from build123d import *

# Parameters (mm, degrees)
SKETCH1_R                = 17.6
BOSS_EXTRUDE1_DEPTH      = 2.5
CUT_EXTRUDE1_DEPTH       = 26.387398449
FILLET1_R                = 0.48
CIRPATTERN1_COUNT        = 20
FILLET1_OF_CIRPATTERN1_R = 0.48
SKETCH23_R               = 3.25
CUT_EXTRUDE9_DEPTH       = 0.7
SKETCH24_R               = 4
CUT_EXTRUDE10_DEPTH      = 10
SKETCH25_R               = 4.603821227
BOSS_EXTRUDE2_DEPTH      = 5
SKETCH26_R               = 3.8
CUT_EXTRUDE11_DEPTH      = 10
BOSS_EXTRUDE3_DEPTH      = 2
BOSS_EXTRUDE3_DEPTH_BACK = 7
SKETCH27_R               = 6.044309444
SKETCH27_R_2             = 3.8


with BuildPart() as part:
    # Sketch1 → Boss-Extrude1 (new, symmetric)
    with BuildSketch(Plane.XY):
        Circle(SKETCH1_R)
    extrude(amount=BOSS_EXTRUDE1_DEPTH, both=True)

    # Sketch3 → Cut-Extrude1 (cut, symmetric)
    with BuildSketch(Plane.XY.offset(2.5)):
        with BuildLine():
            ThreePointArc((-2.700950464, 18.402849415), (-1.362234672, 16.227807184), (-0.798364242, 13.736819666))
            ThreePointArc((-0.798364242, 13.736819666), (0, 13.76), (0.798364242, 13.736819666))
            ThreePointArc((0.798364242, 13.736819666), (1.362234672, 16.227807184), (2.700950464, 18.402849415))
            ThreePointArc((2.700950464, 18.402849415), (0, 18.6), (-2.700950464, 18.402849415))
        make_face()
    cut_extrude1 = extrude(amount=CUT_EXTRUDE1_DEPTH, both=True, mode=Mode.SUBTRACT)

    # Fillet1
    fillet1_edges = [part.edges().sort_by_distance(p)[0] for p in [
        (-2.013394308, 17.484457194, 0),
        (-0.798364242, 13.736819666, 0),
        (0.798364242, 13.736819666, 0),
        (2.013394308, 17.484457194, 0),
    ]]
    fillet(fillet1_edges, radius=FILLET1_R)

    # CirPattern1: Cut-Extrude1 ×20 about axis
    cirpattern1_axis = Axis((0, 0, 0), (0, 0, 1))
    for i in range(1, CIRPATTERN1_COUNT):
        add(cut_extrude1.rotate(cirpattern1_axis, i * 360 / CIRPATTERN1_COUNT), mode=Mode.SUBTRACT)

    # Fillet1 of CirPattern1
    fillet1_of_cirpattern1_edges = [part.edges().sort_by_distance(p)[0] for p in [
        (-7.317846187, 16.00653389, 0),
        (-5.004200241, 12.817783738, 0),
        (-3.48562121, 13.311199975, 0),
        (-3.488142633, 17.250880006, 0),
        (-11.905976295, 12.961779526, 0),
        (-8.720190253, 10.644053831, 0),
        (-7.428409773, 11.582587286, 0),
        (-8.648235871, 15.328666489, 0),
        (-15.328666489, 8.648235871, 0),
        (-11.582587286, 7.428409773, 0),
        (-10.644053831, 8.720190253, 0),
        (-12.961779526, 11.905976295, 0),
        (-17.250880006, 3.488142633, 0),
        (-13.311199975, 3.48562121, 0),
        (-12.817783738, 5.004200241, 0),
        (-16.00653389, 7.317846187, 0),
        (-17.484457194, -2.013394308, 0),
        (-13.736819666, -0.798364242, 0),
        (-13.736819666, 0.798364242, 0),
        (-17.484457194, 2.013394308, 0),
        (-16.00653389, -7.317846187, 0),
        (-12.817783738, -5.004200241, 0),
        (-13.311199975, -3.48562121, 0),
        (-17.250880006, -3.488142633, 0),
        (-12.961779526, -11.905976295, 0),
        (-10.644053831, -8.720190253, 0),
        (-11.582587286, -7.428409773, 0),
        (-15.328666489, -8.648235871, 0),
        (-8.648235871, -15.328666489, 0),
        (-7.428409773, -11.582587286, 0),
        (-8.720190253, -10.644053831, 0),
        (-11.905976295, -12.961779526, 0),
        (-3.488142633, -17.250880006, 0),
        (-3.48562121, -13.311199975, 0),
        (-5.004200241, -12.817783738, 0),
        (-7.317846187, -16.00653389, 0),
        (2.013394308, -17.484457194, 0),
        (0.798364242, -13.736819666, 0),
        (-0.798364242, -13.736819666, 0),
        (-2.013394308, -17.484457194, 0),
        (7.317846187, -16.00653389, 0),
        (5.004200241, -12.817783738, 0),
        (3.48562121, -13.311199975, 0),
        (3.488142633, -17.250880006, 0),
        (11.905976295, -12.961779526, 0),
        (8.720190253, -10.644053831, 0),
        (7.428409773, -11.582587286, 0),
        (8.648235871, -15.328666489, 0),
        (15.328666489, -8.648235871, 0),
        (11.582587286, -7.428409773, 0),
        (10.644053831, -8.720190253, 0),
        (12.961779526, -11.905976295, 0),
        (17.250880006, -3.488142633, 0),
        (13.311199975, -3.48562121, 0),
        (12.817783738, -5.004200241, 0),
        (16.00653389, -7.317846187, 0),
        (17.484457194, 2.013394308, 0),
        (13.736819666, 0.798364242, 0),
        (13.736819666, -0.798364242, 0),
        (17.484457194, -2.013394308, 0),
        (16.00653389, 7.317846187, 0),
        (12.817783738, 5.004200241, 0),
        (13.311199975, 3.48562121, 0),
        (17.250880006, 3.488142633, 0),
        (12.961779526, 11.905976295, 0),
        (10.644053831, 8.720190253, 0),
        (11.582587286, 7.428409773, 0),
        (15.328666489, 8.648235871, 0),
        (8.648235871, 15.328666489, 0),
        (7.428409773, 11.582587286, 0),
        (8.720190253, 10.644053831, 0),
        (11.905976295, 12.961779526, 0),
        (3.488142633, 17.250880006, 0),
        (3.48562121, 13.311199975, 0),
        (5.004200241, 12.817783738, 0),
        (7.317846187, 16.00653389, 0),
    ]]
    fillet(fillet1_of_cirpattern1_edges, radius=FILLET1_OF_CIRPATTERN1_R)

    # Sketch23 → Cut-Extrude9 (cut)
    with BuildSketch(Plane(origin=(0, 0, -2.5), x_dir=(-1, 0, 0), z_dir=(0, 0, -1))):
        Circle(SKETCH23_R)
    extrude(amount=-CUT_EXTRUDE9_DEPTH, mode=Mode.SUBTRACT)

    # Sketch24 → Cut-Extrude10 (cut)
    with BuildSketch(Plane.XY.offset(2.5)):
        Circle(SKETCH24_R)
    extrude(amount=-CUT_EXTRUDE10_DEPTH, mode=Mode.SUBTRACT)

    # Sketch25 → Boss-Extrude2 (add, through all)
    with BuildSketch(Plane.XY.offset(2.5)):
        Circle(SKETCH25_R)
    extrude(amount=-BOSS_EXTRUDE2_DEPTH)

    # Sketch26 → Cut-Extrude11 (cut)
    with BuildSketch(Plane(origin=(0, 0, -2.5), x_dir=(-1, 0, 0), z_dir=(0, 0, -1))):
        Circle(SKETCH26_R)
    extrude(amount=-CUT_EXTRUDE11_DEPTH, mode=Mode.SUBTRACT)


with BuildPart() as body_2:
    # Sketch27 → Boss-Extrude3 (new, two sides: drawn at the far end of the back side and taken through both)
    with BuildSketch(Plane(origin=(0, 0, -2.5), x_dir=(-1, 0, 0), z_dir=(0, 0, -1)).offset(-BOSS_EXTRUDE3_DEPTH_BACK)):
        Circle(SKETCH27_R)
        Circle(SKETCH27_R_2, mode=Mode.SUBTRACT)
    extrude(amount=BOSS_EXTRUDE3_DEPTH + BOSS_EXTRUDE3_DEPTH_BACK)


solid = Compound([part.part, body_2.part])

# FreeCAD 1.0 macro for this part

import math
import FreeCAD as App
import Part
import Sketcher
from FreeCAD import Vector


def edges_at(feature, points):
    """Names of the edges that pass closest to the given points."""
    edges = feature.Shape.Edges
    near = lambda p: min(range(len(edges)), key=lambda i: edges[i].distToShape(Part.Vertex(*p))[0])
    return sorted({f"Edge{near(p) + 1}" for p in points})

doc = App.newDocument("Part")
body = doc.addObject("PartDesign::Body", "Body")

# Sketch on XY plane
sketch1 = body.newObject("Sketcher::SketchObject", "Sketch")
sketch1.AttachmentSupport = (doc.getObject("XY_Plane"), [""])
sketch1.MapMode = "FlatFace"
sketch1.addGeometry(Part.Circle(Vector(0, 0, 0), Vector(0, 0, 1), 18), False)
sketch1.addConstraint(Sketcher.Constraint("Coincident", 0, 3, -1, 1))
sketch1.addConstraint(Sketcher.Constraint("Diameter", 0, 35.2))
pad1 = body.newObject("PartDesign::Pad", "Pad")
pad1.Profile = sketch1
pad1.Length = 5
pad1.Midplane = True

# Sketch on XY plane
sketch2 = body.newObject("Sketcher::SketchObject", "Sketch001")
sketch2.AttachmentSupport = (doc.getObject("XY_Plane"), [""])
sketch2.MapMode = "FlatFace"
sketch2.AttachmentOffset = App.Placement(Vector(0, 0, 2.5), App.Rotation())
sketch2.addGeometry(Part.ArcOfCircle(Part.Circle(Vector(-8.6, 13.3, 0), Vector(0, 0, 1), 7.8), math.radians(3), math.radians(41)), False)
sketch2.addGeometry(Part.ArcOfCircle(Part.Circle(Vector(0, 0, 0), Vector(0, 0, 1), 13.8), math.radians(86.67), math.radians(93.33)), False)
sketch2.addGeometry(Part.ArcOfCircle(Part.Circle(Vector(8.6, 13.3, 0), Vector(0, 0, 1), 7.8), math.radians(139), math.radians(177)), False)
sketch2.addGeometry(Part.ArcOfCircle(Part.Circle(Vector(0, 0, 0), Vector(0, 0, 1), 18.6), math.radians(81.65), math.radians(98.35)), False)
sketch2.addConstraint(Sketcher.Constraint("Coincident", 0, 1, 1, 2))
sketch2.addConstraint(Sketcher.Constraint("Coincident", 1, 1, 2, 2))
sketch2.addConstraint(Sketcher.Constraint("Coincident", 2, 1, 3, 1))
sketch2.addConstraint(Sketcher.Constraint("Coincident", 3, 2, 0, 2))
sketch2.addConstraint(Sketcher.Constraint("Coincident", 1, 3, -1, 1))
sketch2.addConstraint(Sketcher.Constraint("Coincident", 3, 3, -1, 1))
sketch2.addConstraint(Sketcher.Constraint("Equal", 0, 2))
sketch2.addConstraint(Sketcher.Constraint("Symmetric", 0, 3, 2, 3, -2))
sketch2.addConstraint(Sketcher.Constraint("Radius", 3, 18.6))
sketch2.addConstraint(Sketcher.Constraint("Radius", 1, 13.76))
sketch2.addConstraint(Sketcher.Constraint("Radius", 0, 7.795288))
sketch2.addConstraint(Sketcher.Constraint("DistanceX", 3, 2, 2, 1, 5.401901))
sketch2.addConstraint(Sketcher.Constraint("DistanceX", 0, 3, -1, 1, 8.58052))
pocket1 = body.newObject("PartDesign::Pocket", "Pocket")
pocket1.Profile = sketch2
pocket1.Length = 52.774797
pocket1.Midplane = True
doc.recompute()

fillet = body.newObject("PartDesign::Fillet", "Fillet")
fillet.Base = (pocket1, edges_at(pocket1, [
    (-2.013, 17.484, 0),
    (-0.798, 13.737, 0),
    (0.798, 13.737, 0),
    (2.013, 17.484, 0),
]))
fillet.Radius = 0.48
doc.recompute()

polarpattern = body.newObject("PartDesign::PolarPattern", "PolarPattern")
polarpattern.Originals = [pocket1]
polarpattern.Axis = (doc.getObject("Z_Axis"), [""])
polarpattern.Angle = 360
polarpattern.Occurrences = 20
body.Tip = polarpattern
doc.recompute()

fillet2 = body.newObject("PartDesign::Fillet", "Fillet001")
fillet2.Base = (polarpattern, edges_at(polarpattern, [
    (-7.318, 16.007, 0),
    (-5.004, 12.818, 0),
    (-3.486, 13.311, 0),
    (-3.488, 17.251, 0),
    (-11.906, 12.962, 0),
    (-8.72, 10.644, 0),
    (-7.428, 11.583, 0),
    (-8.648, 15.329, 0),
    (-15.329, 8.648, 0),
    (-11.583, 7.428, 0),
    (-10.644, 8.72, 0),
    (-12.962, 11.906, 0),
    (-17.251, 3.488, 0),
    (-13.311, 3.486, 0),
    (-12.818, 5.004, 0),
    (-16.007, 7.318, 0),
    (-17.484, -2.013, 0),
    (-13.737, -0.798, 0),
    (-13.737, 0.798, 0),
    (-17.484, 2.013, 0),
    (-16.007, -7.318, 0),
    (-12.818, -5.004, 0),
    (-13.311, -3.486, 0),
    (-17.251, -3.488, 0),
    (-12.962, -11.906, 0),
    (-10.644, -8.72, 0),
    (-11.583, -7.428, 0),
    (-15.329, -8.648, 0),
    (-8.648, -15.329, 0),
    (-7.428, -11.583, 0),
    (-8.72, -10.644, 0),
    (-11.906, -12.962, 0),
    (-3.488, -17.251, 0),
    (-3.486, -13.311, 0),
    (-5.004, -12.818, 0),
    (-7.318, -16.007, 0),
    (2.013, -17.484, 0),
    (0.798, -13.737, 0),
    (-0.798, -13.737, 0),
    (-2.013, -17.484, 0),
    (7.318, -16.007, 0),
    (5.004, -12.818, 0),
    (3.486, -13.311, 0),
    (3.488, -17.251, 0),
    (11.906, -12.962, 0),
    (8.72, -10.644, 0),
    (7.428, -11.583, 0),
    (8.648, -15.329, 0),
    (15.329, -8.648, 0),
    (11.583, -7.428, 0),
    (10.644, -8.72, 0),
    (12.962, -11.906, 0),
    (17.251, -3.488, 0),
    (13.311, -3.486, 0),
    (12.818, -5.004, 0),
    (16.007, -7.318, 0),
    (17.484, 2.013, 0),
    (13.737, 0.798, 0),
    (13.737, -0.798, 0),
    (17.484, -2.013, 0),
    (16.007, 7.318, 0),
    (12.818, 5.004, 0),
    (13.311, 3.486, 0),
    (17.251, 3.488, 0),
    (12.962, 11.906, 0),
    (10.644, 8.72, 0),
    (11.583, 7.428, 0),
    (15.329, 8.648, 0),
    (8.648, 15.329, 0),
    (7.428, 11.583, 0),
    (8.72, 10.644, 0),
    (11.906, 12.962, 0),
    (3.488, 17.251, 0),
    (3.486, 13.311, 0),
    (5.004, 12.818, 0),
    (7.318, 16.007, 0),
]))
fillet2.Radius = 0.48

# Sketch on XY plane
sketch3 = body.newObject("Sketcher::SketchObject", "Sketch002")
sketch3.AttachmentSupport = (doc.getObject("XY_Plane"), [""])
sketch3.MapMode = "FlatFace"
sketch3.AttachmentOffset = App.Placement(Vector(0, 0, -2.5), App.Rotation())
sketch3.addGeometry(Part.Circle(Vector(0, 0, 0), Vector(0, 0, 1), 3.2), False)
sketch3.addConstraint(Sketcher.Constraint("Coincident", 0, 3, -1, 1))
sketch3.addConstraint(Sketcher.Constraint("Diameter", 0, 6.5))
pocket2 = body.newObject("PartDesign::Pocket", "Pocket001")
pocket2.Profile = sketch3
pocket2.Length = 0.7
pocket2.Reversed = True

# Sketch on XY plane
sketch4 = body.newObject("Sketcher::SketchObject", "Sketch003")
sketch4.AttachmentSupport = (doc.getObject("XY_Plane"), [""])
sketch4.MapMode = "FlatFace"
sketch4.AttachmentOffset = App.Placement(Vector(0, 0, 2.5), App.Rotation())
sketch4.addGeometry(Part.Circle(Vector(0, 0, 0), Vector(0, 0, 1), 4), False)
sketch4.addConstraint(Sketcher.Constraint("Coincident", 0, 3, -1, 1))
sketch4.addConstraint(Sketcher.Constraint("Diameter", 0, 8.0))
pocket3 = body.newObject("PartDesign::Pocket", "Pocket002")
pocket3.Profile = sketch4
pocket3.Length = 10

# Sketch on XY plane
sketch5 = body.newObject("Sketcher::SketchObject", "Sketch004")
sketch5.AttachmentSupport = (doc.getObject("XY_Plane"), [""])
sketch5.MapMode = "FlatFace"
sketch5.AttachmentOffset = App.Placement(Vector(0, 0, 2.5), App.Rotation())
sketch5.addGeometry(Part.Circle(Vector(0, 0, 0), Vector(0, 0, 1), 4.6), False)
sketch5.addConstraint(Sketcher.Constraint("Coincident", 0, 3, -1, 1))
sketch5.addConstraint(Sketcher.Constraint("Diameter", 0, 9.207642))
pad2 = body.newObject("PartDesign::Pad", "Pad001")
pad2.Profile = sketch5
pad2.Length = 5
pad2.Reversed = True

# Sketch on XY plane
sketch6 = body.newObject("Sketcher::SketchObject", "Sketch005")
sketch6.AttachmentSupport = (doc.getObject("XY_Plane"), [""])
sketch6.MapMode = "FlatFace"
sketch6.AttachmentOffset = App.Placement(Vector(0, 0, -2.5), App.Rotation())
sketch6.addGeometry(Part.Circle(Vector(0, 0, 0), Vector(0, 0, 1), 3.8), False)
sketch6.addConstraint(Sketcher.Constraint("Coincident", 0, 3, -1, 1))
sketch6.addConstraint(Sketcher.Constraint("Diameter", 0, 7.6))
pocket4 = body.newObject("PartDesign::Pocket", "Pocket003")
pocket4.Profile = sketch6
pocket4.Length = 10
pocket4.Reversed = True
body2 = doc.addObject("PartDesign::Body", "Body001")

# Sketch on XY plane
sketch7 = body2.newObject("Sketcher::SketchObject", "Sketch006")
sketch7.AttachmentSupport = (doc.getObject("XY_Plane001"), [""])
sketch7.MapMode = "FlatFace"
sketch7.AttachmentOffset = App.Placement(Vector(0, 0, -2.5), App.Rotation())
sketch7.addGeometry(Part.Circle(Vector(0, 0, 0), Vector(0, 0, 1), 6), False)
sketch7.addGeometry(Part.Circle(Vector(0, 0, 0), Vector(0, 0, 1), 3.8), False)
sketch7.addConstraint(Sketcher.Constraint("Coincident", 0, 3, -1, 1))
sketch7.addConstraint(Sketcher.Constraint("Coincident", 1, 3, -1, 1))
sketch7.addConstraint(Sketcher.Constraint("Diameter", 1, 7.6))
sketch7.addConstraint(Sketcher.Constraint("Diameter", 0, 12.088619))
pad3 = body2.newObject("PartDesign::Pad", "Pad002")
pad3.Profile = sketch7
pad3.Type = "TwoLengths"
pad3.Length = 2
pad3.Length2 = 7
pad3.Reversed = True

doc.recompute()
